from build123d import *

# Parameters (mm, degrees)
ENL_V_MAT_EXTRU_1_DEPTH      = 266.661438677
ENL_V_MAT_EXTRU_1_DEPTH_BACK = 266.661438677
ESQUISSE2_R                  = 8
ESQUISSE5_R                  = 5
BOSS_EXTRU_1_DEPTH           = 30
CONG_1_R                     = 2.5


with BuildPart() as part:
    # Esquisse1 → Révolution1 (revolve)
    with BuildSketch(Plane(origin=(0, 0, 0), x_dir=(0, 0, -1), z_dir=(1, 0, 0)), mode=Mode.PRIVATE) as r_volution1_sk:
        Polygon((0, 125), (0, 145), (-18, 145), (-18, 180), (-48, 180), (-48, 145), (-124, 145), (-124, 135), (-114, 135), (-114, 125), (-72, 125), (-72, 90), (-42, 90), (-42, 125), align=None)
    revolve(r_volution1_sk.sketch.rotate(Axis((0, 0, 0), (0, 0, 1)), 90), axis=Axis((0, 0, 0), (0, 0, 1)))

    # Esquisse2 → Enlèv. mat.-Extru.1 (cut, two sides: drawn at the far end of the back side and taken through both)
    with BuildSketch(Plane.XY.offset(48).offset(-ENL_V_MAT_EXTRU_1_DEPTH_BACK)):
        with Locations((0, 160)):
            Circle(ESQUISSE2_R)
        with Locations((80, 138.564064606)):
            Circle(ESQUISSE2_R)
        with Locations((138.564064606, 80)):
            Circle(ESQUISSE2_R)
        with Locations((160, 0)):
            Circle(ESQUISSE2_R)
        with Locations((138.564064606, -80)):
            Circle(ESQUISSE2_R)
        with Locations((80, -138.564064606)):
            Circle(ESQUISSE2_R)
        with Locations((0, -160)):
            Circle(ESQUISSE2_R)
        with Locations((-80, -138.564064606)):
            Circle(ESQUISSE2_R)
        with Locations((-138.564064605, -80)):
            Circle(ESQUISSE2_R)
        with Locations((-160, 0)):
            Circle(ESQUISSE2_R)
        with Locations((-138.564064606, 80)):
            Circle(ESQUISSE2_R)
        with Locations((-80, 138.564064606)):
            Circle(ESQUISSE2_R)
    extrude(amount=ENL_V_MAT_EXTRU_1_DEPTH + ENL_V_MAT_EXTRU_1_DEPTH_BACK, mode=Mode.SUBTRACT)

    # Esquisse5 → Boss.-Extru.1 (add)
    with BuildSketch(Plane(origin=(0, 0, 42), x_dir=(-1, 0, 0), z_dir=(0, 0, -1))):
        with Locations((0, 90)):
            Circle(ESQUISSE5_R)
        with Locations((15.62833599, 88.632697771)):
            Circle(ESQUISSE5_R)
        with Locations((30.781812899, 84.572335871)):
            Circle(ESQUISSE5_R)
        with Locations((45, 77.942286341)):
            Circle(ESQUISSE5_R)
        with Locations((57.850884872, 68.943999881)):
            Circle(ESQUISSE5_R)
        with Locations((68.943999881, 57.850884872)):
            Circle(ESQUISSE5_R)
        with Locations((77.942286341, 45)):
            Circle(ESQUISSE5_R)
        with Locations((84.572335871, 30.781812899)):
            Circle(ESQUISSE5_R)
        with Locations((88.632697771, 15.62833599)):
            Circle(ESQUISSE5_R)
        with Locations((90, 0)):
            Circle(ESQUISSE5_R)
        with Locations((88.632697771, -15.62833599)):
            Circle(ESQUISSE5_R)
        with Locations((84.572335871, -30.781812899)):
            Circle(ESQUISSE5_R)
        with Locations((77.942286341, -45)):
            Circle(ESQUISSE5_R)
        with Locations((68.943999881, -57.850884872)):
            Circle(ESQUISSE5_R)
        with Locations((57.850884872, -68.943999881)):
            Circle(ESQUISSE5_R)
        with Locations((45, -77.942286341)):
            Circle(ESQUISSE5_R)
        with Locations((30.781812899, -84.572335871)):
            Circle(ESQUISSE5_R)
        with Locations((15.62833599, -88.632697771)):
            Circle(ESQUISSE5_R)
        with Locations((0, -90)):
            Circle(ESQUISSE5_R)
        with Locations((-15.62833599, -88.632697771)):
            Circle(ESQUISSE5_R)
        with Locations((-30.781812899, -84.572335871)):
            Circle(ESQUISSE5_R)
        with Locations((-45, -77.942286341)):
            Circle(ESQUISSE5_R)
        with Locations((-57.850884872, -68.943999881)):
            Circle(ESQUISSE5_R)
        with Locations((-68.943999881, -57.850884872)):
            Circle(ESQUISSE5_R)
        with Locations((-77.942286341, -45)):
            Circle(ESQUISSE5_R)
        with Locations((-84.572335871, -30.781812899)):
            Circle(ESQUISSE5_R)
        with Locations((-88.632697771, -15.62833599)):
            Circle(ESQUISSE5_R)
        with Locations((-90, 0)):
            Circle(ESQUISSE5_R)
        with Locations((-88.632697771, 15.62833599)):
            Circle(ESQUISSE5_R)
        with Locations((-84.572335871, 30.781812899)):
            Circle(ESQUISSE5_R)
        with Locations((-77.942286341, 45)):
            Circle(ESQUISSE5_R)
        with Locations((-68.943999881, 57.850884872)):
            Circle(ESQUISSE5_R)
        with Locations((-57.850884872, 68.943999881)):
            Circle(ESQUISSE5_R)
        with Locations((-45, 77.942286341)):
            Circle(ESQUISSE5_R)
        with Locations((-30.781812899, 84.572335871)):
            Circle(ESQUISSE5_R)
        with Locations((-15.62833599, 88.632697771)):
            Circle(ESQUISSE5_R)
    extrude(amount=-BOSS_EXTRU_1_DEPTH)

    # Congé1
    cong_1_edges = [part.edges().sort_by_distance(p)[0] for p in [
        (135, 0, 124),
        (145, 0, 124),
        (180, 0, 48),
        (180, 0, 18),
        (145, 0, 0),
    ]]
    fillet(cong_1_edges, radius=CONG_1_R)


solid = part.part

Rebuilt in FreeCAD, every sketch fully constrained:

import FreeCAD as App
import Part
import Sketcher
from FreeCAD import Vector
Q = App.Units.Quantity


def edges_at(feature, points):
    """Names of the edges that pass closest to the given points."""
    edges = feature.Shape.Edges
    near = lambda p: min(range(len(edges)), key=lambda i: edges[i].distToShape(Part.Vertex(*p))[0])
    return sorted({f"Edge{near(p) + 1}" for p in points})

doc = App.newDocument("Part")
body = doc.addObject("PartDesign::Body", "Body")

# Sketch on YZ plane
sketch1 = doc.addObject("Sketcher::SketchObject", "Sketch")
body.addObject(sketch1)
sketch1.AttachmentSupport = (doc.YZ_Plane, [""])
sketch1.MapMode = "FlatFace"
sketch1.addGeometry(Part.LineSegment(Vector(125, 0, 0), Vector(145, 0, 0)), False)
sketch1.addGeometry(Part.LineSegment(Vector(145, 0, 0), Vector(145, 18, 0)), False)
sketch1.addGeometry(Part.LineSegment(Vector(145, 18, 0), Vector(180, 18, 0)), False)
sketch1.addGeometry(Part.LineSegment(Vector(180, 18, 0), Vector(180, 48, 0)), False)
sketch1.addGeometry(Part.LineSegment(Vector(180, 48, 0), Vector(145, 48, 0)), False)
sketch1.addGeometry(Part.LineSegment(Vector(145, 48, 0), Vector(145, 124, 0)), False)
sketch1.addGeometry(Part.LineSegment(Vector(145, 124, 0), Vector(135, 124, 0)), False)
sketch1.addGeometry(Part.LineSegment(Vector(135, 124, 0), Vector(135, 114, 0)), False)
sketch1.addGeometry(Part.LineSegment(Vector(135, 114, 0), Vector(125, 114, 0)), False)
sketch1.addGeometry(Part.LineSegment(Vector(125, 114, 0), Vector(125, 72, 0)), False)
sketch1.addGeometry(Part.LineSegment(Vector(125, 72, 0), Vector(90, 72, 0)), False)
sketch1.addGeometry(Part.LineSegment(Vector(90, 72, 0), Vector(90, 42, 0)), False)
sketch1.addGeometry(Part.LineSegment(Vector(90, 42, 0), Vector(125, 42, 0)), False)
sketch1.addGeometry(Part.LineSegment(Vector(125, 42, 0), Vector(125, 0, 0)), False)
sketch1.addConstraint(Sketcher.Constraint("Coincident", 0, 2, 1, 1))
sketch1.addConstraint(Sketcher.Constraint("Coincident", 1, 2, 2, 1))
sketch1.addConstraint(Sketcher.Constraint("Coincident", 2, 2, 3, 1))
sketch1.addConstraint(Sketcher.Constraint("Coincident", 3, 2, 4, 1))
sketch1.addConstraint(Sketcher.Constraint("Coincident", 4, 2, 5, 1))
sketch1.addConstraint(Sketcher.Constraint("Coincident", 5, 2, 6, 1))
sketch1.addConstraint(Sketcher.Constraint("Coincident", 6, 2, 7, 1))
sketch1.addConstraint(Sketcher.Constraint("Coincident", 7, 2, 8, 1))
sketch1.addConstraint(Sketcher.Constraint("Coincident", 8, 2, 9, 1))
sketch1.addConstraint(Sketcher.Constraint("Coincident", 9, 2, 10, 1))
sketch1.addConstraint(Sketcher.Constraint("Coincident", 10, 2, 11, 1))
sketch1.addConstraint(Sketcher.Constraint("Coincident", 11, 2, 12, 1))
sketch1.addConstraint(Sketcher.Constraint("Coincident", 12, 2, 13, 1))
sketch1.addConstraint(Sketcher.Constraint("Coincident", 13, 2, 0, 1))
sketch1.addConstraint(Sketcher.Constraint("Horizontal", 0))
sketch1.addConstraint(Sketcher.Constraint("Vertical", 1))
sketch1.addConstraint(Sketcher.Constraint("Horizontal", 2))
sketch1.addConstraint(Sketcher.Constraint("Vertical", 3))
sketch1.addConstraint(Sketcher.Constraint("Horizontal", 4))
sketch1.addConstraint(Sketcher.Constraint("Vertical", 5))
sketch1.addConstraint(Sketcher.Constraint("Horizontal", 6))
sketch1.addConstraint(Sketcher.Constraint("Vertical", 7))
sketch1.addConstraint(Sketcher.Constraint("Horizontal", 8))
sketch1.addConstraint(Sketcher.Constraint("Vertical", 9))
sketch1.addConstraint(Sketcher.Constraint("Horizontal", 10))
sketch1.addConstraint(Sketcher.Constraint("Vertical", 11))
sketch1.addConstraint(Sketcher.Constraint("Horizontal", 12))
sketch1.addConstraint(Sketcher.Constraint("Vertical", 13))
sketch1.addConstraint(Sketcher.Constraint("PointOnObject", 0, 2, -1))
sketch1.addConstraint(Sketcher.Constraint("Vertical", 1, 2, 4, 2))
sketch1.addConstraint(Sketcher.Constraint("Vertical", 9, 2, 12, 2))
sketch1.addConstraint(Sketcher.Constraint("Equal", 6, 8))
sketch1.addConstraint(Sketcher.Constraint("Equal", 4, 10))
sketch1.addConstraint(Sketcher.Constraint("Equal", 8, 7))
sketch1.addConstraint(Sketcher.Constraint("Equal", 3, 11))
sketch1.addConstraint(Sketcher.Constraint("Equal", 9, 13))
sketch1.addConstraint(Sketcher.Constraint("DistanceX", 0, 1, 0, 2, Q("20 mm")))
sketch1.addConstraint(Sketcher.Constraint("DistanceX", 2, 1, 2, 2, Q("35 mm")))
sketch1.addConstraint(Sketcher.Constraint("DistanceY", 1, 1, 1, 2, Q("18 mm")))
sketch1.addConstraint(Sketcher.Constraint("DistanceY", 3, 1, 3, 2, Q("30 mm")))
sketch1.addConstraint(Sketcher.Constraint("DistanceY", 5, 1, 5, 2, Q("76 mm")))
sketch1.addConstraint(Sketcher.Constraint("DistanceX", -1, 1, 0, 2, Q("145 mm")))
revolution = doc.addObject("PartDesign::Revolution", "Revolution")
body.addObject(revolution)
revolution.Profile = sketch1
revolution.ReferenceAxis = (sketch1, ["V_Axis"])
revolution.Angle = 360

# Sketch on XY plane
sketch2 = doc.addObject("Sketcher::SketchObject", "Sketch001")
body.addObject(sketch2)
sketch2.AttachmentSupport = (doc.XY_Plane, [""])
sketch2.MapMode = "FlatFace"
sketch2.AttachmentOffset = App.Placement(Vector(0, 0, 48), App.Rotation())
sketch2.addGeometry(Part.Circle(Vector(0, 160, 0), Vector(0, 0, 1), 8), False)
sketch2.addGeometry(Part.Circle(Vector(80, 139, 0), Vector(0, 0, 1), 8), False)
sketch2.addGeometry(Part.Circle(Vector(139, 80, 0), Vector(0, 0, 1), 8), False)
sketch2.addGeometry(Part.Circle(Vector(160, 0, 0), Vector(0, 0, 1), 8), False)
sketch2.addGeometry(Part.Circle(Vector(139, -80, 0), Vector(0, 0, 1), 8), False)
sketch2.addGeometry(Part.Circle(Vector(80, -139, 0), Vector(0, 0, 1), 8), False)
sketch2.addGeometry(Part.Circle(Vector(0, -160, 0), Vector(0, 0, 1), 8), False)
sketch2.addGeometry(Part.Circle(Vector(-80, -139, 0), Vector(0, 0, 1), 8), False)
sketch2.addGeometry(Part.Circle(Vector(-139, -80, 0), Vector(0, 0, 1), 8), False)
sketch2.addGeometry(Part.Circle(Vector(-160, 0, 0), Vector(0, 0, 1), 8), False)
sketch2.addGeometry(Part.Circle(Vector(-139, 80, 0), Vector(0, 0, 1), 8), False)
sketch2.addGeometry(Part.Circle(Vector(-80, 139, 0), Vector(0, 0, 1), 8), False)
sketch2.addConstraint(Sketcher.Constraint("Equal", 0, 1))
sketch2.addConstraint(Sketcher.Constraint("Equal", 1, 2))
sketch2.addConstraint(Sketcher.Constraint("Equal", 2, 3))
sketch2.addConstraint(Sketcher.Constraint("Equal", 3, 4))
sketch2.addConstraint(Sketcher.Constraint("Equal", 4, 5))
sketch2.addConstraint(Sketcher.Constraint("Equal", 5, 6))
sketch2.addConstraint(Sketcher.Constraint("Equal", 6, 7))
sketch2.addConstraint(Sketcher.Constraint("Equal", 7, 8))
sketch2.addConstraint(Sketcher.Constraint("Equal", 8, 9))
sketch2.addConstraint(Sketcher.Constraint("Equal", 9, 10))
sketch2.addConstraint(Sketcher.Constraint("Equal", 10, 11))
sketch2.addConstraint(Sketcher.Constraint("Symmetric", 0, 3, 6, 3, -1, 1))
sketch2.addConstraint(Sketcher.Constraint("Symmetric", 1, 3, 7, 3, -1, 1))
sketch2.addConstraint(Sketcher.Constraint("Symmetric", 2, 3, 8, 3, -1, 1))
sketch2.addConstraint(Sketcher.Constraint("Symmetric", 3, 3, 9, 3, -1, 1))
sketch2.addConstraint(Sketcher.Constraint("Symmetric", 4, 3, 10, 3, -1, 1))
sketch2.addConstraint(Sketcher.Constraint("Symmetric", 5, 3, 11, 3, -1, 1))
sketch2.addConstraint(Sketcher.Constraint("Symmetric", 5, 3, 7, 3, -2))
sketch2.addConstraint(Sketcher.Constraint("Symmetric", 4, 3, 8, 3, -2))
sketch2.addConstraint(Sketcher.Constraint("PointOnObject", 0, 3, -2))
sketch2.addConstraint(Sketcher.Constraint("PointOnObject", 3, 3, -1))
sketch2.addConstraint(Sketcher.Constraint("Diameter", 0, Q("16 mm")))
sketch2.addConstraint(Sketcher.Constraint("DistanceY", -1, 1, 0, 3, Q("160 mm")))
sketch2.addConstraint(Sketcher.Constraint("DistanceX", -1, 1, 1, 3, Q("80 mm")))
sketch2.addConstraint(Sketcher.Constraint("DistanceY", -1, 1, 2, 3, Q("80 mm")))
sketch2.addConstraint(Sketcher.Constraint("DistanceX", -1, 1, 3, 3, Q("160 mm")))
sketch2.addConstraint(Sketcher.Constraint("DistanceY", 5, 3, 1, 3, Q("277.128129 mm")))
sketch2.addConstraint(Sketcher.Constraint("DistanceX", 8, 3, 4, 3, Q("277.128129 mm")))
pocket1 = doc.addObject("PartDesign::Pocket", "Pocket")
body.addObject(pocket1)
pocket1.Profile = sketch2
pocket1.Type = "ThroughAll"
pocket1.Midplane = True

# Sketch on XY plane
sketch3 = doc.addObject("Sketcher::SketchObject", "Sketch002")
body.addObject(sketch3)
sketch3.AttachmentSupport = (doc.XY_Plane, [""])
sketch3.MapMode = "FlatFace"
sketch3.AttachmentOffset = App.Placement(Vector(0, 0, 42), App.Rotation())
sketch3.addGeometry(Part.Circle(Vector(0, 90, 0), Vector(0, 0, 1), 5), False)
sketch3.addGeometry(Part.Circle(Vector(-16, 89, 0), Vector(0, 0, 1), 5), False)
sketch3.addGeometry(Part.Circle(Vector(-31, 85, 0), Vector(0, 0, 1), 5), False)
sketch3.addGeometry(Part.Circle(Vector(-45, 78, 0), Vector(0, 0, 1), 5), False)
sketch3.addGeometry(Part.Circle(Vector(-58, 69, 0), Vector(0, 0, 1), 5), False)
sketch3.addGeometry(Part.Circle(Vector(-69, 58, 0), Vector(0, 0, 1), 5), False)
sketch3.addGeometry(Part.Circle(Vector(-78, 45, 0), Vector(0, 0, 1), 5), False)
sketch3.addGeometry(Part.Circle(Vector(-85, 31, 0), Vector(0, 0, 1), 5), False)
sketch3.addGeometry(Part.Circle(Vector(-89, 16, 0), Vector(0, 0, 1), 5), False)
sketch3.addGeometry(Part.Circle(Vector(-90, 0, 0), Vector(0, 0, 1), 5), False)
sketch3.addGeometry(Part.Circle(Vector(-89, -16, 0), Vector(0, 0, 1), 5), False)
sketch3.addGeometry(Part.Circle(Vector(-85, -31, 0), Vector(0, 0, 1), 5), False)
sketch3.addGeometry(Part.Circle(Vector(-78, -45, 0), Vector(0, 0, 1), 5), False)
sketch3.addGeometry(Part.Circle(Vector(-69, -58, 0), Vector(0, 0, 1), 5), False)
sketch3.addGeometry(Part.Circle(Vector(-58, -69, 0), Vector(0, 0, 1), 5), False)
sketch3.addGeometry(Part.Circle(Vector(-45, -78, 0), Vector(0, 0, 1), 5), False)
sketch3.addGeometry(Part.Circle(Vector(-31, -85, 0), Vector(0, 0, 1), 5), False)
sketch3.addGeometry(Part.Circle(Vector(-16, -89, 0), Vector(0, 0, 1), 5), False)
sketch3.addGeometry(Part.Circle(Vector(0, -90, 0), Vector(0, 0, 1), 5), False)
sketch3.addGeometry(Part.Circle(Vector(16, -89, 0), Vector(0, 0, 1), 5), False)
sketch3.addGeometry(Part.Circle(Vector(31, -85, 0), Vector(0, 0, 1), 5), False)
sketch3.addGeometry(Part.Circle(Vector(45, -78, 0), Vector(0, 0, 1), 5), False)
sketch3.addGeometry(Part.Circle(Vector(58, -69, 0), Vector(0, 0, 1), 5), False)
sketch3.addGeometry(Part.Circle(Vector(69, -58, 0), Vector(0, 0, 1), 5), False)
sketch3.addGeometry(Part.Circle(Vector(78, -45, 0), Vector(0, 0, 1), 5), False)
sketch3.addGeometry(Part.Circle(Vector(85, -31, 0), Vector(0, 0, 1), 5), False)
sketch3.addGeometry(Part.Circle(Vector(89, -16, 0), Vector(0, 0, 1), 5), False)
sketch3.addGeometry(Part.Circle(Vector(90, 0, 0), Vector(0, 0, 1), 5), False)
sketch3.addGeometry(Part.Circle(Vector(89, 16, 0), Vector(0, 0, 1), 5), False)
sketch3.addGeometry(Part.Circle(Vector(85, 31, 0), Vector(0, 0, 1), 5), False)
sketch3.addGeometry(Part.Circle(Vector(78, 45, 0), Vector(0, 0, 1), 5), False)
sketch3.addGeometry(Part.Circle(Vector(69, 58, 0), Vector(0, 0, 1), 5), False)
sketch3.addGeometry(Part.Circle(Vector(58, 69, 0), Vector(0, 0, 1), 5), False)
sketch3.addGeometry(Part.Circle(Vector(45, 78, 0), Vector(0, 0, 1), 5), False)
sketch3.addGeometry(Part.Circle(Vector(31, 85, 0), Vector(0, 0, 1), 5), False)
sketch3.addGeometry(Part.Circle(Vector(16, 89, 0), Vector(0, 0, 1), 5), False)
sketch3.addConstraint(Sketcher.Constraint("Equal", 0, 1))
sketch3.addConstraint(Sketcher.Constraint("Equal", 1, 2))
sketch3.addConstraint(Sketcher.Constraint("Equal", 2, 3))
sketch3.addConstraint(Sketcher.Constraint("Equal", 3, 4))
sketch3.addConstraint(Sketcher.Constraint("Equal", 4, 5))
sketch3.addConstraint(Sketcher.Constraint("Equal", 5, 6))
sketch3.addConstraint(Sketcher.Constraint("Equal", 6, 7))
sketch3.addConstraint(Sketcher.Constraint("Equal", 7, 8))
sketch3.addConstraint(Sketcher.Constraint("Equal", 8, 9))
sketch3.addConstraint(Sketcher.Constraint("Equal", 9, 10))
sketch3.addConstraint(Sketcher.Constraint("Equal", 10, 11))
sketch3.addConstraint(Sketcher.Constraint("Equal", 11, 12))
sketch3.addConstraint(Sketcher.Constraint("Equal", 12, 13))
sketch3.addConstraint(Sketcher.Constraint("Equal", 13, 14))
sketch3.addConstraint(Sketcher.Constraint("Equal", 14, 15))
sketch3.addConstraint(Sketcher.Constraint("Equal", 15, 16))
sketch3.addConstraint(Sketcher.Constraint("Equal", 16, 17))
sketch3.addConstraint(Sketcher.Constraint("Equal", 17, 18))
sketch3.addConstraint(Sketcher.Constraint("Equal", 18, 19))
sketch3.addConstraint(Sketcher.Constraint("Equal", 19, 20))
sketch3.addConstraint(Sketcher.Constraint("Equal", 20, 21))
sketch3.addConstraint(Sketcher.Constraint("Equal", 21, 22))
sketch3.addConstraint(Sketcher.Constraint("Equal", 22, 23))
sketch3.addConstraint(Sketcher.Constraint("Equal", 23, 24))
sketch3.addConstraint(Sketcher.Constraint("Equal", 24, 25))
sketch3.addConstraint(Sketcher.Constraint("Equal", 25, 26))
sketch3.addConstraint(Sketcher.Constraint("Equal", 26, 27))
sketch3.addConstraint(Sketcher.Constraint("Equal", 27, 28))
sketch3.addConstraint(Sketcher.Constraint("Equal", 28, 29))
sketch3.addConstraint(Sketcher.Constraint("Equal", 29, 30))
sketch3.addConstraint(Sketcher.Constraint("Equal", 30, 31))
sketch3.addConstraint(Sketcher.Constraint("Equal", 31, 32))
sketch3.addConstraint(Sketcher.Constraint("Equal", 32, 33))
sketch3.addConstraint(Sketcher.Constraint("Equal", 33, 34))
sketch3.addConstraint(Sketcher.Constraint("Equal", 34, 35))
sketch3.addConstraint(Sketcher.Constraint("Symmetric", 0, 3, 18, 3, -1, 1))
sketch3.addConstraint(Sketcher.Constraint("Symmetric", 1, 3, 19, 3, -1, 1))
sketch3.addConstraint(Sketcher.Constraint("Symmetric", 2, 3, 20, 3, -1, 1))
sketch3.addConstraint(Sketcher.Constraint("Symmetric", 3, 3, 21, 3, -1, 1))
sketch3.addConstraint(Sketcher.Constraint("Symmetric", 4, 3, 22, 3, -1, 1))
sketch3.addConstraint(Sketcher.Constraint("Symmetric", 5, 3, 23, 3, -1, 1))
sketch3.addConstraint(Sketcher.Constraint("Symmetric", 6, 3, 24, 3, -1, 1))
sketch3.addConstraint(Sketcher.Constraint("Symmetric", 7, 3, 25, 3, -1, 1))
sketch3.addConstraint(Sketcher.Constraint("Symmetric", 8, 3, 26, 3, -1, 1))
sketch3.addConstraint(Sketcher.Constraint("Symmetric", 9, 3, 27, 3, -1, 1))
sketch3.addConstraint(Sketcher.Constraint("Symmetric", 10, 3, 28, 3, -1, 1))
sketch3.addConstraint(Sketcher.Constraint("Symmetric", 11, 3, 29, 3, -1, 1))
sketch3.addConstraint(Sketcher.Constraint("Symmetric", 12, 3, 30, 3, -1, 1))
sketch3.addConstraint(Sketcher.Constraint("Symmetric", 13, 3, 31, 3, -1, 1))
sketch3.addConstraint(Sketcher.Constraint("Symmetric", 14, 3, 32, 3, -1, 1))
sketch3.addConstraint(Sketcher.Constraint("Symmetric", 15, 3, 33, 3, -1, 1))
sketch3.addConstraint(Sketcher.Constraint("Symmetric", 16, 3, 34, 3, -1, 1))
sketch3.addConstraint(Sketcher.Constraint("Symmetric", 17, 3, 35, 3, -1, 1))
sketch3.addConstraint(Sketcher.Constraint("Symmetric", 17, 3, 19, 3, -2))
sketch3.addConstraint(Sketcher.Constraint("Symmetric", 16, 3, 20, 3, -2))
sketch3.addConstraint(Sketcher.Constraint("Symmetric", 15, 3, 21, 3, -2))
sketch3.addConstraint(Sketcher.Constraint("Symmetric", 14, 3, 22, 3, -2))
sketch3.addConstraint(Sketcher.Constraint("Symmetric", 13, 3, 23, 3, -2))
sketch3.addConstraint(Sketcher.Constraint("Symmetric", 12, 3, 24, 3, -2))
sketch3.addConstraint(Sketcher.Constraint("Symmetric", 11, 3, 25, 3, -2))
sketch3.addConstraint(Sketcher.Constraint("Symmetric", 10, 3, 26, 3, -2))
sketch3.addConstraint(Sketcher.Constraint("PointOnObject", 0, 3, -2))
sketch3.addConstraint(Sketcher.Constraint("PointOnObject", 9, 3, -1))
sketch3.addConstraint(Sketcher.Constraint("Diameter", 0, Q("10 mm")))
sketch3.addConstraint(Sketcher.Constraint("DistanceY", -1, 1, 0, 3, Q("90 mm")))
sketch3.addConstraint(Sketcher.Constraint("DistanceX", 3, 3, -1, 1, Q("45 mm")))
sketch3.addConstraint(Sketcher.Constraint("DistanceY", -1, 1, 6, 3, Q("45 mm")))
sketch3.addConstraint(Sketcher.Constraint("DistanceX", 9, 3, -1, 1, Q("90 mm")))
sketch3.addConstraint(Sketcher.Constraint("DistanceY", -1, 1, 4, 3, Q("68.944 mm")))
sketch3.addConstraint(Sketcher.Constraint("DistanceX", 5, 3, -1, 1, Q("68.944 mm")))
sketch3.addConstraint(Sketcher.Constraint("DistanceY", 5, 3, 3, 3, Q("20.091401 mm")))
sketch3.addConstraint(Sketcher.Constraint("DistanceX", 6, 3, 4, 3, Q("20.091401 mm")))
sketch3.addConstraint(Sketcher.Constraint("DistanceY", 2, 3, 1, 3, Q("4.060362 mm")))
sketch3.addConstraint(Sketcher.Constraint("DistanceY", 3, 3, 2, 3, Q("6.63005 mm")))
sketch3.addConstraint(Sketcher.Constraint("DistanceX", 4, 3, 2, 3, Q("27.069072 mm")))
sketch3.addConstraint(Sketcher.Constraint("DistanceX", 4, 3, 1, 3, Q("42.222549 mm")))
sketch3.addConstraint(Sketcher.Constraint("DistanceX", 7, 3, 6, 3, Q("6.63005 mm")))
sketch3.addConstraint(Sketcher.Constraint("DistanceY", 7, 3, 5, 3, Q("27.069072 mm")))
sketch3.addConstraint(Sketcher.Constraint("DistanceX", 8, 3, 7, 3, Q("4.060362 mm")))
sketch3.addConstraint(Sketcher.Constraint("DistanceY", 8, 3, 5, 3, Q("42.222549 mm")))
sketch3.addConstraint(Sketcher.Constraint("DistanceY", 10, 3, 8, 3, Q("31.256672 mm")))
sketch3.addConstraint(Sketcher.Constraint("DistanceX", 17, 3, 19, 3, Q("31.256672 mm")))
pad1 = doc.addObject("PartDesign::Pad", "Pad")
body.addObject(pad1)
pad1.Profile = sketch3
pad1.Length = 30
doc.recompute()

fillet = doc.addObject("PartDesign::Fillet", "Fillet")
body.addObject(fillet)
fillet.Base = (pad1, edges_at(pad1, [
    (135, 0, 124),
    (145, 0, 124),
    (180, 0, 48),
    (180, 0, 18),
    (145, 0, 0),
]))
fillet.Radius = 2.5

doc.recompute()
